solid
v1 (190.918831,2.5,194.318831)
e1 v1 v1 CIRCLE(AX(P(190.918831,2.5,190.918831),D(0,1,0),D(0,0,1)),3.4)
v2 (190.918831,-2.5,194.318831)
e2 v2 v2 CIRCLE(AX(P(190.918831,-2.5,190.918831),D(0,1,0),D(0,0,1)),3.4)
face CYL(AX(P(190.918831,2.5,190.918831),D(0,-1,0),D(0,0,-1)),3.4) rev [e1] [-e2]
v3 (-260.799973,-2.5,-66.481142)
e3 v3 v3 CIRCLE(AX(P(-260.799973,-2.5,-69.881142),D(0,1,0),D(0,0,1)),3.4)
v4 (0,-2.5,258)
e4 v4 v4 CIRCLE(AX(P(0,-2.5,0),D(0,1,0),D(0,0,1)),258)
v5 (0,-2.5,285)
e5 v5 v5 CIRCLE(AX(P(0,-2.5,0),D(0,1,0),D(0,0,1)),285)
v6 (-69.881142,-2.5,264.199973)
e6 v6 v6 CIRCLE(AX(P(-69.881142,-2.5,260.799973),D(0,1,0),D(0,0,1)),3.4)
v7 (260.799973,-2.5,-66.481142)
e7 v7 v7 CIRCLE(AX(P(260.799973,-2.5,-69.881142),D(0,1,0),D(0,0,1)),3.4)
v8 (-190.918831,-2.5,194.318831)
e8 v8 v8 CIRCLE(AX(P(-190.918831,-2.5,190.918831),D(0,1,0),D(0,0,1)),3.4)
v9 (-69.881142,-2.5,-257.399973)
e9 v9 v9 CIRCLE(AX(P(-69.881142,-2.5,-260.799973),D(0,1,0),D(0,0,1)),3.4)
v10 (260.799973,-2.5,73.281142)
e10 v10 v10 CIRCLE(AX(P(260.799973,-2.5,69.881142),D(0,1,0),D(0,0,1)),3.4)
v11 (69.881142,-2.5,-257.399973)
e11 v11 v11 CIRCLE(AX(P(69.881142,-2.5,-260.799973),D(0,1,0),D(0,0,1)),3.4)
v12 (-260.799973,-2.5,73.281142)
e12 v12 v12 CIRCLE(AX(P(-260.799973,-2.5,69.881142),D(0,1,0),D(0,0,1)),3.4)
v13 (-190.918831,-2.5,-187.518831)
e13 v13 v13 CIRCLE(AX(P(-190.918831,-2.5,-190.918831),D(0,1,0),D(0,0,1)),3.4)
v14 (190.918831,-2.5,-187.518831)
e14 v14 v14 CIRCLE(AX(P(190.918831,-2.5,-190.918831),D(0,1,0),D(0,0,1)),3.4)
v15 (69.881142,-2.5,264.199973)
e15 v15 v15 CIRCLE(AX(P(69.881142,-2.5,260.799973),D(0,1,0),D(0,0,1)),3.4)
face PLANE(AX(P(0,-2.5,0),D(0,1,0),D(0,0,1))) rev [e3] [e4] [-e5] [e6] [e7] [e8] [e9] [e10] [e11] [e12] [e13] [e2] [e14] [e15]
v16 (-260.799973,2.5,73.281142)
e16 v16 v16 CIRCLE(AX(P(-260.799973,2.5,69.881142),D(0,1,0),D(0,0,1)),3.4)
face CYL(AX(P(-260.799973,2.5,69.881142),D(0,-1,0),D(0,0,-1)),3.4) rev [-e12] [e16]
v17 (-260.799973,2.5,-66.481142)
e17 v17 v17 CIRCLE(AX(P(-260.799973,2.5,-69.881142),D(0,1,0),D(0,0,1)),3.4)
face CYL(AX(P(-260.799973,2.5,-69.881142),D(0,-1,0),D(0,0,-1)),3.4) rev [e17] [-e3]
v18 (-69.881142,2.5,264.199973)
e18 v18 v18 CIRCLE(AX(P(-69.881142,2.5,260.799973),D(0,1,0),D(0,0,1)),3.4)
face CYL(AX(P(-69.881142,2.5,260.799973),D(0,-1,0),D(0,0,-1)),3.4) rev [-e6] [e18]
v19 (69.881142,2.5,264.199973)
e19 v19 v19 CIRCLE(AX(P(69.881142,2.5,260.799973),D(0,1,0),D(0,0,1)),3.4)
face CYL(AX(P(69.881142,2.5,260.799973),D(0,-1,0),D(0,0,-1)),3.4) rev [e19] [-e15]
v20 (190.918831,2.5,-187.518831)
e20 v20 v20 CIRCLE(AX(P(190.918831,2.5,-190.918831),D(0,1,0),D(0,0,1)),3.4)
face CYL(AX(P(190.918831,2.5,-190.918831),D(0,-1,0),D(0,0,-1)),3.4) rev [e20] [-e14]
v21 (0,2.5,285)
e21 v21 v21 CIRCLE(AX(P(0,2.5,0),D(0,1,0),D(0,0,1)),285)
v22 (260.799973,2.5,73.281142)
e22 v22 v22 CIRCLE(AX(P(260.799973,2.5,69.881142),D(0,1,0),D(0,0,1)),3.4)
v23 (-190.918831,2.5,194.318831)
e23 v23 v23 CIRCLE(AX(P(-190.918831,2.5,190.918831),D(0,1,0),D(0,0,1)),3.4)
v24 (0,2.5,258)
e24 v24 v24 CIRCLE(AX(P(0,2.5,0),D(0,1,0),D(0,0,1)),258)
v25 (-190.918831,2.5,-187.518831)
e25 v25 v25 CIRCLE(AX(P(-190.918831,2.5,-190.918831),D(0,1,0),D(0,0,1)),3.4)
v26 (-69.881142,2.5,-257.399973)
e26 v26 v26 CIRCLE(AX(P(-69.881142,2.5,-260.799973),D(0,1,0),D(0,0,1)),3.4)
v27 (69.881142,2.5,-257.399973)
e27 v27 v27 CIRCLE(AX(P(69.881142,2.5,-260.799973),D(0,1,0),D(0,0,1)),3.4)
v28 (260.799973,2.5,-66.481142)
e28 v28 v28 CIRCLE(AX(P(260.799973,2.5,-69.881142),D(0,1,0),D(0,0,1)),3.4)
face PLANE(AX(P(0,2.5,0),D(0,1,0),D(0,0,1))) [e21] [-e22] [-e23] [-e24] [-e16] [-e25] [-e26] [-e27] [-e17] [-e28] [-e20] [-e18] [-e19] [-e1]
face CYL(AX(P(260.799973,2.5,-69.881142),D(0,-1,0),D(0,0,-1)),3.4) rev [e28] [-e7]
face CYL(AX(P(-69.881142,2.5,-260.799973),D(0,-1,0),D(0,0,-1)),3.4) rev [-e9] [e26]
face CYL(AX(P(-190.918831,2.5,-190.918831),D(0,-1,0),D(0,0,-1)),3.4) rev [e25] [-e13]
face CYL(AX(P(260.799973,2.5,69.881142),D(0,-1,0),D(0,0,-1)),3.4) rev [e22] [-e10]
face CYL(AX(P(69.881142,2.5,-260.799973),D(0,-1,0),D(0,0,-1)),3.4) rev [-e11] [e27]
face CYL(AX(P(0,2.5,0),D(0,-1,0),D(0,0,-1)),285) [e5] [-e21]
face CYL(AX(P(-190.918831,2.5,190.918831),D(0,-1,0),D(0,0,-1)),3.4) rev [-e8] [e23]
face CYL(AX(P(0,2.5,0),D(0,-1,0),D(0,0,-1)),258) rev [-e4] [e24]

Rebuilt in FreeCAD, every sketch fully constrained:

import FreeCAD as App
import Part
import Sketcher

doc = App.newDocument("Part")
body = doc.addObject("PartDesign::Body", "Body")

sketch1 = doc.addObject("Sketcher::SketchObject", "Sketch")
body.addObject(sketch1)
sketch1.AttachmentSupport = (doc.XZ_Plane, [""])
sketch1.MapMode = "FlatFace"
sketch1.addGeometry([
    Part.Circle(App.Vector(0, 0, 0), App.Vector(0, 0, 1), 285),
    Part.Circle(App.Vector(-190.9, 190.9, 0), App.Vector(0, 0, 1), 3.4),
    Part.Circle(App.Vector(-69.9, 260.8, 0), App.Vector(0, 0, 1), 3.4),
    Part.Circle(App.Vector(-260.8, 69.9, 0), App.Vector(0, 0, 1), 3.4),
    Part.Circle(App.Vector(69.9, 260.8, 0), App.Vector(0, 0, 1), 3.4),
    Part.Circle(App.Vector(190.9, 190.9, 0), App.Vector(0, 0, 1), 3.4),
    Part.Circle(App.Vector(260.8, 69.9, 0), App.Vector(0, 0, 1), 3.4),
    Part.Circle(App.Vector(-260.8, -69.9, 0), App.Vector(0, 0, 1), 3.4),
    Part.Circle(App.Vector(-190.9, -190.9, 0), App.Vector(0, 0, 1), 3.4),
    Part.Circle(App.Vector(-69.9, -260.8, 0), App.Vector(0, 0, 1), 3.4),
    Part.Circle(App.Vector(0, 0, 0), App.Vector(0, 0, 1), 258),
    Part.Circle(App.Vector(260.8, -69.9, 0), App.Vector(0, 0, 1), 3.4),
    Part.Circle(App.Vector(69.9, -260.8, 0), App.Vector(0, 0, 1), 3.4),
    Part.Circle(App.Vector(190.9, -190.9, 0), App.Vector(0, 0, 1), 3.4),
], False)
sketch1.addConstraint([
    Sketcher.Constraint("Coincident", 0, 3, -1, 1),
    Sketcher.Constraint("Coincident", 10, 3, -1, 1),
    Sketcher.Constraint("Equal", 1, 2),
    Sketcher.Constraint("Equal", 2, 3),
    Sketcher.Constraint("Equal", 3, 4),
    Sketcher.Constraint("Equal", 4, 5),
    Sketcher.Constraint("Equal", 5, 6),
    Sketcher.Constraint("Equal", 6, 7),
    Sketcher.Constraint("Equal", 7, 8),
    Sketcher.Constraint("Equal", 8, 9),
    Sketcher.Constraint("Equal", 9, 11),
    Sketcher.Constraint("Equal", 11, 12),
    Sketcher.Constraint("Equal", 12, 13),
    Sketcher.Constraint("Symmetric", 6, 3, 7, 3, -1, 1),
    Sketcher.Constraint("Symmetric", 5, 3, 8, 3, -1, 1),
    Sketcher.Constraint("Symmetric", 4, 3, 9, 3, -1, 1),
    Sketcher.Constraint("Symmetric", 3, 3, 11, 3, -1, 1),
    Sketcher.Constraint("Symmetric", 2, 3, 12, 3, -1, 1),
    Sketcher.Constraint("Symmetric", 1, 3, 13, 3, -1, 1),
    Sketcher.Constraint("Symmetric", 2, 3, 4, 3, -2),
    Sketcher.Constraint("Symmetric", 1, 3, 5, 3, -2),
    Sketcher.Constraint("Symmetric", 3, 3, 6, 3, -2),
    Sketcher.Constraint("Diameter", 0, 570.0),
    Sketcher.Constraint("Diameter", 10, 516.0),
    Sketcher.Constraint("Diameter", 1, 6.8),
    Sketcher.Constraint("DistanceX", 1, 3, -1, 1, 190.918831),
    Sketcher.Constraint("DistanceY", -1, 1, 1, 3, 190.918831),
    Sketcher.Constraint("DistanceX", 1, 3, 2, 3, 121.037689),
    Sketcher.Constraint("DistanceY", 3, 3, 1, 3, 121.037689),
    Sketcher.Constraint("DistanceX", 3, 3, 2, 3, 190.918831),
    Sketcher.Constraint("DistanceY", 3, 3, 2, 3, 190.918831),
])
pad1 = doc.addObject("PartDesign::Pad", "Pad")
body.addObject(pad1)
pad1.Profile = sketch1
pad1.Length = 5
pad1.Midplane = True

doc.recompute()
